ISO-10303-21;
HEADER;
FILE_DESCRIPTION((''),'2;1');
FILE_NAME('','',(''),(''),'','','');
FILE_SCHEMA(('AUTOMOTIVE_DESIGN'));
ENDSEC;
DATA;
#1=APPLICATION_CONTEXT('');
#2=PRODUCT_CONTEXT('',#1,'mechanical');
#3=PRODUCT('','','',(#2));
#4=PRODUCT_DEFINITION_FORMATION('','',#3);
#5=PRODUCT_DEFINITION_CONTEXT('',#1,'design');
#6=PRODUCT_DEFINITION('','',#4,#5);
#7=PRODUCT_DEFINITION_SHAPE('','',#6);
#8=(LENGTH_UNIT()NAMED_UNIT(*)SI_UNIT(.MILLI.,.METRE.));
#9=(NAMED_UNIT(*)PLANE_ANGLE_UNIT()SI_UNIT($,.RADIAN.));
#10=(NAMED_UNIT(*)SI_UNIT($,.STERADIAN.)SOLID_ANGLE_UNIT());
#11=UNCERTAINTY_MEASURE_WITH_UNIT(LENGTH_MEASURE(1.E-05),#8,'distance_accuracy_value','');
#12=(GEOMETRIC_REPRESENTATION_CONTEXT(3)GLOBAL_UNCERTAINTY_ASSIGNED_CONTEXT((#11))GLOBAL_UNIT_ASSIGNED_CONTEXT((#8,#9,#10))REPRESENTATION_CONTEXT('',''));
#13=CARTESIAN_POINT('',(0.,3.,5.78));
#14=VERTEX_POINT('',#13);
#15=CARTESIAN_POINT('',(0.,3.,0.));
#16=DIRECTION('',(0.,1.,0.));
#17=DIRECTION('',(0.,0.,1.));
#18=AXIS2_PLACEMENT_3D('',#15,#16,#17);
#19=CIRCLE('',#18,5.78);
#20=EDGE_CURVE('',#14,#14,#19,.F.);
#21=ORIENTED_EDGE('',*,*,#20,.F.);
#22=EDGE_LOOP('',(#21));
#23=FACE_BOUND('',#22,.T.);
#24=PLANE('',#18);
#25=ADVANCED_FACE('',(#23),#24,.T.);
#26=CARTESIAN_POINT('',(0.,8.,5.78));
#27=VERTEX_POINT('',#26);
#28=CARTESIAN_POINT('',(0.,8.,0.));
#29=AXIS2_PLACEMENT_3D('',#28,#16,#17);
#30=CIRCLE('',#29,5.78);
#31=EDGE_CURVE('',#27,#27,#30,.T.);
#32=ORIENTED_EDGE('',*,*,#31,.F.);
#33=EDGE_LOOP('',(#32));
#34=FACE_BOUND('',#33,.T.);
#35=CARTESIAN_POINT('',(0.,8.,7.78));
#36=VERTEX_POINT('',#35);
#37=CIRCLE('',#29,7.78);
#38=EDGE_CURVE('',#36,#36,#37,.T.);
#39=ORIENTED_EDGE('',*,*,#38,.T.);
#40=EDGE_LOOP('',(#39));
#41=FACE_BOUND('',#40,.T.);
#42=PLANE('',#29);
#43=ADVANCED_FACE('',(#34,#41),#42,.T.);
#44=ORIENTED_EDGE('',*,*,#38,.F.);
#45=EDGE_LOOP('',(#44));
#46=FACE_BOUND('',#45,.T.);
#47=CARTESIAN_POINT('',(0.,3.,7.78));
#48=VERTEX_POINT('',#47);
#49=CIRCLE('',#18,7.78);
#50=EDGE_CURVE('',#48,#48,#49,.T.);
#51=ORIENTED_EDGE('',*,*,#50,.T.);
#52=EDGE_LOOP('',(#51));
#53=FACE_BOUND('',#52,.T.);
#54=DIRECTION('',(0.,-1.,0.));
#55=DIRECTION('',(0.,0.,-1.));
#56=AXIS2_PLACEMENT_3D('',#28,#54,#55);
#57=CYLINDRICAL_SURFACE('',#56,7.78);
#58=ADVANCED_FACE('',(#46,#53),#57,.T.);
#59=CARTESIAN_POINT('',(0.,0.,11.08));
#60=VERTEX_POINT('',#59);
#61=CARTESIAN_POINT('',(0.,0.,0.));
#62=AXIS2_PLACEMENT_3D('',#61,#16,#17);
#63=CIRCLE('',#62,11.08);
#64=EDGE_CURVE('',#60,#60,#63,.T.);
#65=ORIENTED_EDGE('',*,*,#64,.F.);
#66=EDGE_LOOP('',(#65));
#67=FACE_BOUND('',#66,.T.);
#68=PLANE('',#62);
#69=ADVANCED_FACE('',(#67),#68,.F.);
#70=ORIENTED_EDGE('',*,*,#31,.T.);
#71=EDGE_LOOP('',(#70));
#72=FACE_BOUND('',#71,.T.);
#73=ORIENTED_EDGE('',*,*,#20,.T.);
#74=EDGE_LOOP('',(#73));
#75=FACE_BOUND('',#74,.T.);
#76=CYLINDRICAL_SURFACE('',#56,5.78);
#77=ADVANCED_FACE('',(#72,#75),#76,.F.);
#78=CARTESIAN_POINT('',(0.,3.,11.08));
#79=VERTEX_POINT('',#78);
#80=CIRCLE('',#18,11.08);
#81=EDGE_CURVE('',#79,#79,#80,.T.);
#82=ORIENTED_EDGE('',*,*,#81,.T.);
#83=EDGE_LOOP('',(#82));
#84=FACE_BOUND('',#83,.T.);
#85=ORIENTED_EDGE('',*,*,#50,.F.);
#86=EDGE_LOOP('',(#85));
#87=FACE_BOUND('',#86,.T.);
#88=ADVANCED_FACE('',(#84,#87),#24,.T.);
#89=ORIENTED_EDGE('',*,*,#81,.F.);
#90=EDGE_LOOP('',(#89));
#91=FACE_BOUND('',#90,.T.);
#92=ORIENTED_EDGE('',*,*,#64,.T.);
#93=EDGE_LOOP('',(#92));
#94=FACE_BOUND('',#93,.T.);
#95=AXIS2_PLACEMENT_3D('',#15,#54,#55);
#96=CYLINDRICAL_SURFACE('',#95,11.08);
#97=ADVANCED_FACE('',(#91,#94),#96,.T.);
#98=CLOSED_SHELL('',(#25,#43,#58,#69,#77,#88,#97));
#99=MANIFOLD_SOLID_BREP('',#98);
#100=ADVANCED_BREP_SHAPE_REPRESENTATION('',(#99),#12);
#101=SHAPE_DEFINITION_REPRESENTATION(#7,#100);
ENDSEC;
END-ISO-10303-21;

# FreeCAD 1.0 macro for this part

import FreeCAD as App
import Part
import Sketcher

V = App.Vector
Q = App.Units.Quantity

doc = App.newDocument("Part")
body = doc.addObject("PartDesign::Body", "Body")

# Sketch on XZ plane
sketch1 = body.newObject("Sketcher::SketchObject", "Sketch")
sketch1.AttachmentSupport = (doc.getObject("XZ_Plane"), [""])
sketch1.MapMode = "FlatFace"
sketch1.addGeometry(Part.Circle(V(0, 0, 0), V(0, 0, 1), 11), False)
sketch1.addConstraint([
    Sketcher.Constraint("Coincident", 0, 3, -1, 1),
    Sketcher.Constraint("Diameter", 0, Q("22.16 mm")),
])
pad1 = body.newObject("PartDesign::Pad", "Pad")
pad1.Profile = sketch1
pad1.Length = 3
pad1.Reversed = True

# Sketch on XZ plane
sketch2 = body.newObject("Sketcher::SketchObject", "Sketch001")
sketch2.AttachmentSupport = (doc.getObject("XZ_Plane"), [""])
sketch2.MapMode = "FlatFace"
sketch2.AttachmentOffset = App.Placement(V(0, 0, -3), App.Rotation())
sketch2.addGeometry([
    Part.Circle(V(0, 0, 0), V(0, 0, 1), 8),
    Part.Circle(V(0, 0, 0), V(0, 0, 1), 6),
], False)
sketch2.addConstraint([
    Sketcher.Constraint("Coincident", 0, 3, -1, 1),
    Sketcher.Constraint("Coincident", 1, 3, -1, 1),
    Sketcher.Constraint("Diameter", 0, Q("15.56 mm")),
    Sketcher.Constraint("Diameter", 1, Q("11.56 mm")),
])
pad2 = body.newObject("PartDesign::Pad", "Pad001")
pad2.Profile = sketch2
pad2.Length = 5
pad2.Reversed = True

doc.recompute()
